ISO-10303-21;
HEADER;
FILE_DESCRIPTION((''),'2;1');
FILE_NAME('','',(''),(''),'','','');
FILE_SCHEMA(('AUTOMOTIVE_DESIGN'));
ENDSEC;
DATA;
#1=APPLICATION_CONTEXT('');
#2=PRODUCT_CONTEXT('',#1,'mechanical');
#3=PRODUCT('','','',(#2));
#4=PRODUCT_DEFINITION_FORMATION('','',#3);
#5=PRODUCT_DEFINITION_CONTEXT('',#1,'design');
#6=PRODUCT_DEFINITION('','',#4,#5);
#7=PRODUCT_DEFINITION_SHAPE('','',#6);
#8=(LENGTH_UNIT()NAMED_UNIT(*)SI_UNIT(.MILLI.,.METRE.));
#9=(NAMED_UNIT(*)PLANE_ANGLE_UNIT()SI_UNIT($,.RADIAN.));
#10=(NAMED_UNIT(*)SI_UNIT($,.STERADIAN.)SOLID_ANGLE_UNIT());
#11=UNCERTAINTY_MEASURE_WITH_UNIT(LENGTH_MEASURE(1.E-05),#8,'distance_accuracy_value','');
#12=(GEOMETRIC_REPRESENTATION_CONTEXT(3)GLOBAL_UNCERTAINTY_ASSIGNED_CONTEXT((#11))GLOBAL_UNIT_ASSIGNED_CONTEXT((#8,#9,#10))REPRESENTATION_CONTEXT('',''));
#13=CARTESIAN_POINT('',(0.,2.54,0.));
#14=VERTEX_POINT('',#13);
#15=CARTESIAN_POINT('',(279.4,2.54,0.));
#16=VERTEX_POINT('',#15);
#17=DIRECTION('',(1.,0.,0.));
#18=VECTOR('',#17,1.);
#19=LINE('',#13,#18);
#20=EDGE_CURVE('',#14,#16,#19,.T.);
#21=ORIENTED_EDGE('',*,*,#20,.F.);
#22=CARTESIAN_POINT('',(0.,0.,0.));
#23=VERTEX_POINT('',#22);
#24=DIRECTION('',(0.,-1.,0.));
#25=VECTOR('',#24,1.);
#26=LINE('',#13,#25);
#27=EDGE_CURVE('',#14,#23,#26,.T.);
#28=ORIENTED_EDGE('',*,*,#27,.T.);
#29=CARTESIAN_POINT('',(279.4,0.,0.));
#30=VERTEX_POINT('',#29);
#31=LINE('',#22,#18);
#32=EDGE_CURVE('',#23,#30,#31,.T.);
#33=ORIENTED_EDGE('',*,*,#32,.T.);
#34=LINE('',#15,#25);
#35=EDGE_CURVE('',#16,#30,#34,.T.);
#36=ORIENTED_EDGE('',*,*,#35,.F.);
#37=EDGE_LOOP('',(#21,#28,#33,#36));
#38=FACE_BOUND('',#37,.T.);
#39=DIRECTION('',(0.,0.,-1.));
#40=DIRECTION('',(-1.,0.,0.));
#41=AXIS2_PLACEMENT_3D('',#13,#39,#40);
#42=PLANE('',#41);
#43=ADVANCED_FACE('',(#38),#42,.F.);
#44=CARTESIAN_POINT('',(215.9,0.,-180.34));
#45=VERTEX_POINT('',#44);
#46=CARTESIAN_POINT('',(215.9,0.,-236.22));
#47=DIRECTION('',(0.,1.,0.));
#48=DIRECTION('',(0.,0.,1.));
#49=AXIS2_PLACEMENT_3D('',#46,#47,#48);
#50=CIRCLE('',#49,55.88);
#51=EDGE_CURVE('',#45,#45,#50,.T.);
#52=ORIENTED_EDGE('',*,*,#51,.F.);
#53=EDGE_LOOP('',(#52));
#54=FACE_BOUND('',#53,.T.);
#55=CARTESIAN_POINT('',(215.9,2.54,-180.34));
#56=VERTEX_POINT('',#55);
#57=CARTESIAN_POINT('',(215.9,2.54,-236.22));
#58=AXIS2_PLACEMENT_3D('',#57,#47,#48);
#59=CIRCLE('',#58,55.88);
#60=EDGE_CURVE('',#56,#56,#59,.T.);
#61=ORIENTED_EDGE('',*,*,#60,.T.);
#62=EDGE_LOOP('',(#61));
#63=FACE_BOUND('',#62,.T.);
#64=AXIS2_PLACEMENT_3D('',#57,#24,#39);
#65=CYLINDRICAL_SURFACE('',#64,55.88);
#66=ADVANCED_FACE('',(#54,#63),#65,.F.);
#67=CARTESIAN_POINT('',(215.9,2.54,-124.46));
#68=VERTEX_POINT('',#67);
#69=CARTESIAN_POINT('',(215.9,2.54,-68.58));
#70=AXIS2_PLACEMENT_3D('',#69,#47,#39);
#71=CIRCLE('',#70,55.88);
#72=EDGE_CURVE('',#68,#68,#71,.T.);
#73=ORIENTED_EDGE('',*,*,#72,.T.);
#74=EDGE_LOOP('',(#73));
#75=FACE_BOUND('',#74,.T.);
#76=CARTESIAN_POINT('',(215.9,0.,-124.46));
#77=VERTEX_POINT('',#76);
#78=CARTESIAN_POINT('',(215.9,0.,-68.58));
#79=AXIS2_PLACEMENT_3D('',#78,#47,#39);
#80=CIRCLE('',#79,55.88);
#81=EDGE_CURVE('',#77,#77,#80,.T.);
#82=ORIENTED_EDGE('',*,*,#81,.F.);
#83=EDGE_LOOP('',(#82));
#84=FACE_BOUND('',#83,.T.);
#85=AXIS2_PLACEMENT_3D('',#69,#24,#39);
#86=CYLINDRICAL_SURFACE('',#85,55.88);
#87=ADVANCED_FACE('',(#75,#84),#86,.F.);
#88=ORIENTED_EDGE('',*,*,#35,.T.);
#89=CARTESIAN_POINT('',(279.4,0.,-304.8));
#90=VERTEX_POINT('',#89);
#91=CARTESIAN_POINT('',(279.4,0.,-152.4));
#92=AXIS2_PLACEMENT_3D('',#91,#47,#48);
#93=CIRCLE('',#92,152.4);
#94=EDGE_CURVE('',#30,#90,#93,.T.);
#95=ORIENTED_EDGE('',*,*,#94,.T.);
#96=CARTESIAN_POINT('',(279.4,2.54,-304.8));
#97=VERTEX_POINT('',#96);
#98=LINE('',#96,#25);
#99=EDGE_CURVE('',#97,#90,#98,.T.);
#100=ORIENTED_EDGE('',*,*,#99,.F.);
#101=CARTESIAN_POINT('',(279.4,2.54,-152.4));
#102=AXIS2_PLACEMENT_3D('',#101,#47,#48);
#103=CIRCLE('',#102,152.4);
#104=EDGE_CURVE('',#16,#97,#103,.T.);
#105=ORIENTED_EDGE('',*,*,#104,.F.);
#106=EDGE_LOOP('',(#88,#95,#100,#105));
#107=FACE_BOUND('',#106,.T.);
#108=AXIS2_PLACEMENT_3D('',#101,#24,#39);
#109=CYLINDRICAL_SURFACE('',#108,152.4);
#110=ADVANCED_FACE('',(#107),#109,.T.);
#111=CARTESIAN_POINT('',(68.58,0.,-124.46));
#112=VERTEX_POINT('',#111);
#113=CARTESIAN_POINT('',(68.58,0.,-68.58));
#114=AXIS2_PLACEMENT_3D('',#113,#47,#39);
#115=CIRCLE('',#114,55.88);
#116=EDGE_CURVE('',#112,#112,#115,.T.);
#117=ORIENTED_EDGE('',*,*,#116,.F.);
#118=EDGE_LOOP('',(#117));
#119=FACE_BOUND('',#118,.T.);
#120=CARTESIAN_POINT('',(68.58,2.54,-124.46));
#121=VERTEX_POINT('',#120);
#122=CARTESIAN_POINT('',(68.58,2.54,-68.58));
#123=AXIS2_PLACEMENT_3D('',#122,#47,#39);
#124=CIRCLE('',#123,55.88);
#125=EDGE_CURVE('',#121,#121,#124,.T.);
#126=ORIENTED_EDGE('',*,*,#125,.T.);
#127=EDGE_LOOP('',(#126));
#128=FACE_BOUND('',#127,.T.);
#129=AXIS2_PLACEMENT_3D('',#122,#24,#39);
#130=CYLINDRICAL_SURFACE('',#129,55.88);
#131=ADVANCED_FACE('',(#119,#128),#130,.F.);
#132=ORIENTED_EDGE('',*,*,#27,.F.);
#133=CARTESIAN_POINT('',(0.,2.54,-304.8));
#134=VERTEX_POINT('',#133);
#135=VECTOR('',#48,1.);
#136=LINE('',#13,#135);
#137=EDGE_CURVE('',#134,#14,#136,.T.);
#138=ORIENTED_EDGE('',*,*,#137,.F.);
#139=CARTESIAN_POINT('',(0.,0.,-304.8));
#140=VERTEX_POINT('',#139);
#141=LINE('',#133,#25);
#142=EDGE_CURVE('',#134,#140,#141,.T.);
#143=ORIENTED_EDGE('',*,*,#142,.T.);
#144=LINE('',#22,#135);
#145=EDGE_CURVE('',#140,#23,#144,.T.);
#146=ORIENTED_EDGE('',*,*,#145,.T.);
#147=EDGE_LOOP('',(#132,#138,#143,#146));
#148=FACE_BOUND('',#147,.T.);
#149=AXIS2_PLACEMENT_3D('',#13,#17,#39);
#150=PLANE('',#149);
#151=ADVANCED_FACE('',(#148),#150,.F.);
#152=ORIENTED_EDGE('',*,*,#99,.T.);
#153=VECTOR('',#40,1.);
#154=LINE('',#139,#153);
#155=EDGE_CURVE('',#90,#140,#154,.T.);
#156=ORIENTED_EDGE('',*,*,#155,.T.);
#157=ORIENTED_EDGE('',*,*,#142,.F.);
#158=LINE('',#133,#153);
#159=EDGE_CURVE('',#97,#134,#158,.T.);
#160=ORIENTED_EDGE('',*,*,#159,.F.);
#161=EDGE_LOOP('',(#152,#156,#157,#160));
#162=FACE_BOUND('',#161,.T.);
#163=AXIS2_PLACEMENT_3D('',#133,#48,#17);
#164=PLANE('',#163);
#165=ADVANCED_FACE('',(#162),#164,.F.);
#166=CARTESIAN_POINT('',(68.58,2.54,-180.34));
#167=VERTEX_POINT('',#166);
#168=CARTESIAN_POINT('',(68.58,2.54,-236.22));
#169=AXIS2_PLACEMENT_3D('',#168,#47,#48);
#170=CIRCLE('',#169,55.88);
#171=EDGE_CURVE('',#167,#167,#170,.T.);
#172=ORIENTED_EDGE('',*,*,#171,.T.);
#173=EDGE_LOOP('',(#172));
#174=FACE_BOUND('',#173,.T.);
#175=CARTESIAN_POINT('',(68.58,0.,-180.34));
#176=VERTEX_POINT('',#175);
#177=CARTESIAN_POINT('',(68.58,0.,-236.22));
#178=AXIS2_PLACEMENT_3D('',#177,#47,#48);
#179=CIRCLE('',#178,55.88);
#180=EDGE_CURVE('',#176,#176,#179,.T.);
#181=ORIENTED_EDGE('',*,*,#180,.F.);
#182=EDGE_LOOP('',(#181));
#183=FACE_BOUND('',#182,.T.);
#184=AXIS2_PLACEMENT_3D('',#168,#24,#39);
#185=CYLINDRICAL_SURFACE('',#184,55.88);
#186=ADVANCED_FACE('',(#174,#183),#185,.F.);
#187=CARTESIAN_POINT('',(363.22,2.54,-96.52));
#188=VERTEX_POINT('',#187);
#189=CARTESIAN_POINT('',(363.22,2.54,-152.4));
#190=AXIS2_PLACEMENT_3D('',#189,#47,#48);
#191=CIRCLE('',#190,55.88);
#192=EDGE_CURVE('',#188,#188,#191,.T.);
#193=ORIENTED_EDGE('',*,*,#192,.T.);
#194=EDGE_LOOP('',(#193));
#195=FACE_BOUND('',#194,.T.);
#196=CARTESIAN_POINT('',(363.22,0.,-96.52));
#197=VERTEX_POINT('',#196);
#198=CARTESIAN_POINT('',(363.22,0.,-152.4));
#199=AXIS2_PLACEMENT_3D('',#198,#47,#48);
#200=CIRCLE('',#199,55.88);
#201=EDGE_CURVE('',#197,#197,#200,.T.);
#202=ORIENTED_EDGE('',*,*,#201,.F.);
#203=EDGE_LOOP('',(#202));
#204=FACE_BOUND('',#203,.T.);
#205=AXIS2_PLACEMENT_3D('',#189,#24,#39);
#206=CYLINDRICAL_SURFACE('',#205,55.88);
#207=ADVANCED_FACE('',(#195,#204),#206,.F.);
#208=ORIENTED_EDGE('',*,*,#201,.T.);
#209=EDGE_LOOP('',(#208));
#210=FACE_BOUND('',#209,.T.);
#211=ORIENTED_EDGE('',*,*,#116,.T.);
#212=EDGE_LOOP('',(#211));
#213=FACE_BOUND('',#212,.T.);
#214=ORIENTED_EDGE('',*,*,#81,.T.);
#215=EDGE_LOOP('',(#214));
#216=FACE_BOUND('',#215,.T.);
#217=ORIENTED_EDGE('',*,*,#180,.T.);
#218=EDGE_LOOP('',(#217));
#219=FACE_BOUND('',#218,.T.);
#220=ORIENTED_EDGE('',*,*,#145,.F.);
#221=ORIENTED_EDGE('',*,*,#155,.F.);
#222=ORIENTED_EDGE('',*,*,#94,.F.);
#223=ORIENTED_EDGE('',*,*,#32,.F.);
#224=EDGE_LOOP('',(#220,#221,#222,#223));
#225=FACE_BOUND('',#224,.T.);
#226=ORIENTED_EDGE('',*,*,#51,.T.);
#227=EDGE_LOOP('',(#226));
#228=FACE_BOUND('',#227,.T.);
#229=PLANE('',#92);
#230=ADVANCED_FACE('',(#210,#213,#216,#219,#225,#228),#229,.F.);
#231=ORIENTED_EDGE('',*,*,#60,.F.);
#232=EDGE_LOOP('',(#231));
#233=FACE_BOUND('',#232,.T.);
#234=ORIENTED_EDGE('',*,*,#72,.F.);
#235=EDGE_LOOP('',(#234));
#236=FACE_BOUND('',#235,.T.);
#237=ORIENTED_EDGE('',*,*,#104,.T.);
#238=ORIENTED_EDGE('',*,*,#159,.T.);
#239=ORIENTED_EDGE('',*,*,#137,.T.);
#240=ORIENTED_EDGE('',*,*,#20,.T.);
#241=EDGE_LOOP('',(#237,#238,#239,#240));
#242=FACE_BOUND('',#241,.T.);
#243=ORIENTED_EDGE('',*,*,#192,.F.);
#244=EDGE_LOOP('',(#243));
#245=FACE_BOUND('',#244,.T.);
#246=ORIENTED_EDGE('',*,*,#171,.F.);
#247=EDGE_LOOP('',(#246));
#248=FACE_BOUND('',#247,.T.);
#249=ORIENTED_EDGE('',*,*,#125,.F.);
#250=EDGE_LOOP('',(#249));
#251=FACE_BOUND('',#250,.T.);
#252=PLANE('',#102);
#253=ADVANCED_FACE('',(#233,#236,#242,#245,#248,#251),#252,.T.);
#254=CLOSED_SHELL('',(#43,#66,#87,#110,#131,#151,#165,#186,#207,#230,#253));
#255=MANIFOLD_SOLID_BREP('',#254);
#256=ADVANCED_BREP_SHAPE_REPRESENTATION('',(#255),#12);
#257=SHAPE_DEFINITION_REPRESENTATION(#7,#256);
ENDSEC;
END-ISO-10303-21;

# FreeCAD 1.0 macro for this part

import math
import FreeCAD as App
import Part
import Sketcher
from FreeCAD import Vector
Q = App.Units.Quantity

doc = App.newDocument("Part")
body = doc.addObject("PartDesign::Body", "Body")

# Sketch on XZ plane
sketch1 = body.newObject("Sketcher::SketchObject", "Sketch")
sketch1.AttachmentSupport = (doc.getObject("XZ_Plane"), [""])
sketch1.MapMode = "FlatFace"
sketch1.addGeometry([
    Part.LineSegment(Vector(0, 0, 0), Vector(279, 0, 0)),  # 0
    Part.ArcOfCircle(Part.Circle(Vector(279, -152, 0), Vector(0, 0, 1), 152), math.radians(-90), math.radians(90)),  # 1
    Part.LineSegment(Vector(279, -305, 0), Vector(0, -305, 0)),  # 2
    Part.LineSegment(Vector(0, -305, 0), Vector(0, 0, 0)),  # 3
    Part.Circle(Vector(69, -69, 0), Vector(0, 0, 1), 56),  # 4
    Part.Circle(Vector(216, -69, 0), Vector(0, 0, 1), 56),  # 5
    Part.Circle(Vector(69, -236, 0), Vector(0, 0, 1), 56),  # 6
    Part.Circle(Vector(363, -152, 0), Vector(0, 0, 1), 56),  # 7
    Part.Circle(Vector(216, -236, 0), Vector(0, 0, 1), 56),  # 8
], False)
sketch1.addConstraint([
    Sketcher.Constraint("Tangent", 0, 2, 1, 2),
    Sketcher.Constraint("Tangent", 1, 1, 2, 1),
    Sketcher.Constraint("Coincident", 2, 2, 3, 1),
    Sketcher.Constraint("Coincident", 3, 2, 0, 1),
    Sketcher.Constraint("Horizontal", 0),
    Sketcher.Constraint("Horizontal", 2),
    Sketcher.Constraint("Vertical", 3),
    Sketcher.Constraint("Coincident", 3, 2, -1, 1),
    Sketcher.Constraint("Equal", 4, 5),
    Sketcher.Constraint("Equal", 5, 6),
    Sketcher.Constraint("Equal", 6, 7),
    Sketcher.Constraint("Equal", 7, 8),
    Sketcher.Constraint("Horizontal", 4, 3, 5, 3),
    Sketcher.Constraint("Horizontal", 1, 3, 7, 3),
    Sketcher.Constraint("Horizontal", 6, 3, 8, 3),
    Sketcher.Constraint("Vertical", 4, 3, 6, 3),
    Sketcher.Constraint("Vertical", 5, 3, 8, 3),
    Sketcher.Constraint("Radius", 1, Q("6 in")),
    Sketcher.Constraint("Diameter", 4, Q("4.4 in")),
    Sketcher.Constraint("DistanceX", 0, 1, 0, 2, Q("11 in")),
    Sketcher.Constraint("DistanceX", -1, 1, 4, 3, Q("2.7 in")),
    Sketcher.Constraint("DistanceY", 4, 3, -1, 1, Q("2.7 in")),
    Sketcher.Constraint("DistanceX", -1, 1, 5, 3, Q("8.5 in")),
    Sketcher.Constraint("DistanceY", 6, 3, -1, 1, Q("9.3 in")),
    Sketcher.Constraint("DistanceX", -1, 1, 7, 3, Q("14.3 in")),
])
pad1 = body.newObject("PartDesign::Pad", "Pad")
pad1.Profile = sketch1
pad1.Length = Q("0.1 in")
pad1.Reversed = True

doc.recompute()
